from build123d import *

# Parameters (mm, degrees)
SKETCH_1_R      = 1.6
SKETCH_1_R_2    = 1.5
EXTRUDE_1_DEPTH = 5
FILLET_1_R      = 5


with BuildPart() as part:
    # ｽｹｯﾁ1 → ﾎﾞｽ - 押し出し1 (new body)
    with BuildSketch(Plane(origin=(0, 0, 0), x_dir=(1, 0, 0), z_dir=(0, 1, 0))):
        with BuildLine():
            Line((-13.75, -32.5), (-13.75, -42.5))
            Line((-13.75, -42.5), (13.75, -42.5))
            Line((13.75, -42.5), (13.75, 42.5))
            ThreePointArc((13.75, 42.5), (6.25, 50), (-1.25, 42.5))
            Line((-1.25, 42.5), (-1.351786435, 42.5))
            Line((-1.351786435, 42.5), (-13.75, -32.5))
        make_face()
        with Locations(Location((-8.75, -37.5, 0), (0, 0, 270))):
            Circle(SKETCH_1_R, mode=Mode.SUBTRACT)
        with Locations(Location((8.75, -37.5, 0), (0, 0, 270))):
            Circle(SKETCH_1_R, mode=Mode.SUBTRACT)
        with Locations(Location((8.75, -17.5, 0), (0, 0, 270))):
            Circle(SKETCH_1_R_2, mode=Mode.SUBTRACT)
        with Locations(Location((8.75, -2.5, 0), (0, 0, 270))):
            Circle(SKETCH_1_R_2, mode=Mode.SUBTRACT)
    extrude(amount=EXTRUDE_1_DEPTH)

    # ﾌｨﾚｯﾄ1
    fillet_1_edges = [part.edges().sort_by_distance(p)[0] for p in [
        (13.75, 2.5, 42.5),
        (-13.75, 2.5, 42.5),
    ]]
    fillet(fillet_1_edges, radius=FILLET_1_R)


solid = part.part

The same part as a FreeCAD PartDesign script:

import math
import FreeCAD as App
import Part
import Sketcher
from FreeCAD import Vector


def edges_at(feature, points):
    """Names of the edges that pass closest to the given points."""
    edges = feature.Shape.Edges
    near = lambda p: min(range(len(edges)), key=lambda i: edges[i].distToShape(Part.Vertex(*p))[0])
    return sorted({f"Edge{near(p) + 1}" for p in points})

doc = App.newDocument("Part")
body = doc.addObject("PartDesign::Body", "Body")

# Sketch on XZ plane
sketch1 = doc.addObject("Sketcher::SketchObject", "Sketch")
body.addObject(sketch1)
sketch1.AttachmentSupport = (doc.XZ_Plane, [""])
sketch1.MapMode = "FlatFace"
sketch1.addGeometry([
    Part.LineSegment(Vector(-13.75, 32.5, 0), Vector(-13.75, 42.5, 0)),  # 0
    Part.LineSegment(Vector(-13.75, 42.5, 0), Vector(13.75, 42.5, 0)),  # 1
    Part.LineSegment(Vector(13.75, 42.5, 0), Vector(13.75, -42.5, 0)),  # 2
    Part.ArcOfCircle(Part.Circle(Vector(6.25, -42.5, 0), Vector(0, 0, 1), 7.5), math.radians(180), math.radians(360)),  # 3
    Part.LineSegment(Vector(-1.25, -42.5, 0), Vector(-1.35, -42.5, 0)),  # 4
    Part.LineSegment(Vector(-1.35, -42.5, 0), Vector(-13.75, 32.5, 0)),  # 5
    Part.Circle(Vector(-8.75, 37.5, 0), Vector(0, 0, 1), 1.6),  # 6
    Part.Circle(Vector(8.75, 37.5, 0), Vector(0, 0, 1), 1.6),  # 7
    Part.Circle(Vector(8.75, 17.5, 0), Vector(0, 0, 1), 1.5),  # 8
    Part.Circle(Vector(8.75, 2.5, 0), Vector(0, 0, 1), 1.5),  # 9
], False)
sketch1.addConstraint([
    Sketcher.Constraint("Coincident", 0, 2, 1, 1),
    Sketcher.Constraint("Coincident", 1, 2, 2, 1),
    Sketcher.Constraint("Tangent", 2, 2, 3, 2),
    Sketcher.Constraint("Coincident", 3, 1, 4, 1),
    Sketcher.Constraint("Coincident", 4, 2, 5, 1),
    Sketcher.Constraint("Coincident", 5, 2, 0, 1),
    Sketcher.Constraint("Vertical", 0),
    Sketcher.Constraint("Horizontal", 1),
    Sketcher.Constraint("Vertical", 2),
    Sketcher.Constraint("Horizontal", 4),
    Sketcher.Constraint("Equal", 6, 7),
    Sketcher.Constraint("Equal", 8, 9),
    Sketcher.Constraint("Symmetric", 0, 2, 2, 2, -1, 1),
    Sketcher.Constraint("Symmetric", 6, 3, 7, 3, -2),
    Sketcher.Constraint("Horizontal", 2, 2, 3, 1),
    Sketcher.Constraint("Vertical", 7, 3, 8, 3),
    Sketcher.Constraint("Vertical", 8, 3, 9, 3),
    Sketcher.Constraint("Diameter", 8, 3.0),
    Sketcher.Constraint("Diameter", 6, 3.2),
    Sketcher.Constraint("Radius", 3, 7.5),
    Sketcher.Constraint("DistanceY", 0, 1, 0, 2, 10.0),
    Sketcher.Constraint("DistanceY", 2, 2, 2, 1, 85.0),
    Sketcher.Constraint("DistanceX", 1, 1, 1, 2, 27.5),
    Sketcher.Constraint("DistanceX", 6, 3, 3, 3, 15.0),
    Sketcher.Constraint("DistanceY", 3, 3, 6, 3, 80.0),
    Sketcher.Constraint("DistanceY", 8, 3, 7, 3, 20.0),
    Sketcher.Constraint("DistanceY", 9, 3, 8, 3, 15.0),
    Sketcher.Constraint("DistanceX", 4, 2, 4, 1, 0.101786),
])
pad1 = doc.addObject("PartDesign::Pad", "Pad")
body.addObject(pad1)
pad1.Profile = sketch1
pad1.Length = 5
pad1.Reversed = True
doc.recompute()

fillet = doc.addObject("PartDesign::Fillet", "Fillet")
body.addObject(fillet)
fillet.Base = (pad1, edges_at(pad1, [(13.75, 2.5, 42.5), (-13.75, 2.5, 42.5)]))
fillet.Radius = 5

doc.recompute()
